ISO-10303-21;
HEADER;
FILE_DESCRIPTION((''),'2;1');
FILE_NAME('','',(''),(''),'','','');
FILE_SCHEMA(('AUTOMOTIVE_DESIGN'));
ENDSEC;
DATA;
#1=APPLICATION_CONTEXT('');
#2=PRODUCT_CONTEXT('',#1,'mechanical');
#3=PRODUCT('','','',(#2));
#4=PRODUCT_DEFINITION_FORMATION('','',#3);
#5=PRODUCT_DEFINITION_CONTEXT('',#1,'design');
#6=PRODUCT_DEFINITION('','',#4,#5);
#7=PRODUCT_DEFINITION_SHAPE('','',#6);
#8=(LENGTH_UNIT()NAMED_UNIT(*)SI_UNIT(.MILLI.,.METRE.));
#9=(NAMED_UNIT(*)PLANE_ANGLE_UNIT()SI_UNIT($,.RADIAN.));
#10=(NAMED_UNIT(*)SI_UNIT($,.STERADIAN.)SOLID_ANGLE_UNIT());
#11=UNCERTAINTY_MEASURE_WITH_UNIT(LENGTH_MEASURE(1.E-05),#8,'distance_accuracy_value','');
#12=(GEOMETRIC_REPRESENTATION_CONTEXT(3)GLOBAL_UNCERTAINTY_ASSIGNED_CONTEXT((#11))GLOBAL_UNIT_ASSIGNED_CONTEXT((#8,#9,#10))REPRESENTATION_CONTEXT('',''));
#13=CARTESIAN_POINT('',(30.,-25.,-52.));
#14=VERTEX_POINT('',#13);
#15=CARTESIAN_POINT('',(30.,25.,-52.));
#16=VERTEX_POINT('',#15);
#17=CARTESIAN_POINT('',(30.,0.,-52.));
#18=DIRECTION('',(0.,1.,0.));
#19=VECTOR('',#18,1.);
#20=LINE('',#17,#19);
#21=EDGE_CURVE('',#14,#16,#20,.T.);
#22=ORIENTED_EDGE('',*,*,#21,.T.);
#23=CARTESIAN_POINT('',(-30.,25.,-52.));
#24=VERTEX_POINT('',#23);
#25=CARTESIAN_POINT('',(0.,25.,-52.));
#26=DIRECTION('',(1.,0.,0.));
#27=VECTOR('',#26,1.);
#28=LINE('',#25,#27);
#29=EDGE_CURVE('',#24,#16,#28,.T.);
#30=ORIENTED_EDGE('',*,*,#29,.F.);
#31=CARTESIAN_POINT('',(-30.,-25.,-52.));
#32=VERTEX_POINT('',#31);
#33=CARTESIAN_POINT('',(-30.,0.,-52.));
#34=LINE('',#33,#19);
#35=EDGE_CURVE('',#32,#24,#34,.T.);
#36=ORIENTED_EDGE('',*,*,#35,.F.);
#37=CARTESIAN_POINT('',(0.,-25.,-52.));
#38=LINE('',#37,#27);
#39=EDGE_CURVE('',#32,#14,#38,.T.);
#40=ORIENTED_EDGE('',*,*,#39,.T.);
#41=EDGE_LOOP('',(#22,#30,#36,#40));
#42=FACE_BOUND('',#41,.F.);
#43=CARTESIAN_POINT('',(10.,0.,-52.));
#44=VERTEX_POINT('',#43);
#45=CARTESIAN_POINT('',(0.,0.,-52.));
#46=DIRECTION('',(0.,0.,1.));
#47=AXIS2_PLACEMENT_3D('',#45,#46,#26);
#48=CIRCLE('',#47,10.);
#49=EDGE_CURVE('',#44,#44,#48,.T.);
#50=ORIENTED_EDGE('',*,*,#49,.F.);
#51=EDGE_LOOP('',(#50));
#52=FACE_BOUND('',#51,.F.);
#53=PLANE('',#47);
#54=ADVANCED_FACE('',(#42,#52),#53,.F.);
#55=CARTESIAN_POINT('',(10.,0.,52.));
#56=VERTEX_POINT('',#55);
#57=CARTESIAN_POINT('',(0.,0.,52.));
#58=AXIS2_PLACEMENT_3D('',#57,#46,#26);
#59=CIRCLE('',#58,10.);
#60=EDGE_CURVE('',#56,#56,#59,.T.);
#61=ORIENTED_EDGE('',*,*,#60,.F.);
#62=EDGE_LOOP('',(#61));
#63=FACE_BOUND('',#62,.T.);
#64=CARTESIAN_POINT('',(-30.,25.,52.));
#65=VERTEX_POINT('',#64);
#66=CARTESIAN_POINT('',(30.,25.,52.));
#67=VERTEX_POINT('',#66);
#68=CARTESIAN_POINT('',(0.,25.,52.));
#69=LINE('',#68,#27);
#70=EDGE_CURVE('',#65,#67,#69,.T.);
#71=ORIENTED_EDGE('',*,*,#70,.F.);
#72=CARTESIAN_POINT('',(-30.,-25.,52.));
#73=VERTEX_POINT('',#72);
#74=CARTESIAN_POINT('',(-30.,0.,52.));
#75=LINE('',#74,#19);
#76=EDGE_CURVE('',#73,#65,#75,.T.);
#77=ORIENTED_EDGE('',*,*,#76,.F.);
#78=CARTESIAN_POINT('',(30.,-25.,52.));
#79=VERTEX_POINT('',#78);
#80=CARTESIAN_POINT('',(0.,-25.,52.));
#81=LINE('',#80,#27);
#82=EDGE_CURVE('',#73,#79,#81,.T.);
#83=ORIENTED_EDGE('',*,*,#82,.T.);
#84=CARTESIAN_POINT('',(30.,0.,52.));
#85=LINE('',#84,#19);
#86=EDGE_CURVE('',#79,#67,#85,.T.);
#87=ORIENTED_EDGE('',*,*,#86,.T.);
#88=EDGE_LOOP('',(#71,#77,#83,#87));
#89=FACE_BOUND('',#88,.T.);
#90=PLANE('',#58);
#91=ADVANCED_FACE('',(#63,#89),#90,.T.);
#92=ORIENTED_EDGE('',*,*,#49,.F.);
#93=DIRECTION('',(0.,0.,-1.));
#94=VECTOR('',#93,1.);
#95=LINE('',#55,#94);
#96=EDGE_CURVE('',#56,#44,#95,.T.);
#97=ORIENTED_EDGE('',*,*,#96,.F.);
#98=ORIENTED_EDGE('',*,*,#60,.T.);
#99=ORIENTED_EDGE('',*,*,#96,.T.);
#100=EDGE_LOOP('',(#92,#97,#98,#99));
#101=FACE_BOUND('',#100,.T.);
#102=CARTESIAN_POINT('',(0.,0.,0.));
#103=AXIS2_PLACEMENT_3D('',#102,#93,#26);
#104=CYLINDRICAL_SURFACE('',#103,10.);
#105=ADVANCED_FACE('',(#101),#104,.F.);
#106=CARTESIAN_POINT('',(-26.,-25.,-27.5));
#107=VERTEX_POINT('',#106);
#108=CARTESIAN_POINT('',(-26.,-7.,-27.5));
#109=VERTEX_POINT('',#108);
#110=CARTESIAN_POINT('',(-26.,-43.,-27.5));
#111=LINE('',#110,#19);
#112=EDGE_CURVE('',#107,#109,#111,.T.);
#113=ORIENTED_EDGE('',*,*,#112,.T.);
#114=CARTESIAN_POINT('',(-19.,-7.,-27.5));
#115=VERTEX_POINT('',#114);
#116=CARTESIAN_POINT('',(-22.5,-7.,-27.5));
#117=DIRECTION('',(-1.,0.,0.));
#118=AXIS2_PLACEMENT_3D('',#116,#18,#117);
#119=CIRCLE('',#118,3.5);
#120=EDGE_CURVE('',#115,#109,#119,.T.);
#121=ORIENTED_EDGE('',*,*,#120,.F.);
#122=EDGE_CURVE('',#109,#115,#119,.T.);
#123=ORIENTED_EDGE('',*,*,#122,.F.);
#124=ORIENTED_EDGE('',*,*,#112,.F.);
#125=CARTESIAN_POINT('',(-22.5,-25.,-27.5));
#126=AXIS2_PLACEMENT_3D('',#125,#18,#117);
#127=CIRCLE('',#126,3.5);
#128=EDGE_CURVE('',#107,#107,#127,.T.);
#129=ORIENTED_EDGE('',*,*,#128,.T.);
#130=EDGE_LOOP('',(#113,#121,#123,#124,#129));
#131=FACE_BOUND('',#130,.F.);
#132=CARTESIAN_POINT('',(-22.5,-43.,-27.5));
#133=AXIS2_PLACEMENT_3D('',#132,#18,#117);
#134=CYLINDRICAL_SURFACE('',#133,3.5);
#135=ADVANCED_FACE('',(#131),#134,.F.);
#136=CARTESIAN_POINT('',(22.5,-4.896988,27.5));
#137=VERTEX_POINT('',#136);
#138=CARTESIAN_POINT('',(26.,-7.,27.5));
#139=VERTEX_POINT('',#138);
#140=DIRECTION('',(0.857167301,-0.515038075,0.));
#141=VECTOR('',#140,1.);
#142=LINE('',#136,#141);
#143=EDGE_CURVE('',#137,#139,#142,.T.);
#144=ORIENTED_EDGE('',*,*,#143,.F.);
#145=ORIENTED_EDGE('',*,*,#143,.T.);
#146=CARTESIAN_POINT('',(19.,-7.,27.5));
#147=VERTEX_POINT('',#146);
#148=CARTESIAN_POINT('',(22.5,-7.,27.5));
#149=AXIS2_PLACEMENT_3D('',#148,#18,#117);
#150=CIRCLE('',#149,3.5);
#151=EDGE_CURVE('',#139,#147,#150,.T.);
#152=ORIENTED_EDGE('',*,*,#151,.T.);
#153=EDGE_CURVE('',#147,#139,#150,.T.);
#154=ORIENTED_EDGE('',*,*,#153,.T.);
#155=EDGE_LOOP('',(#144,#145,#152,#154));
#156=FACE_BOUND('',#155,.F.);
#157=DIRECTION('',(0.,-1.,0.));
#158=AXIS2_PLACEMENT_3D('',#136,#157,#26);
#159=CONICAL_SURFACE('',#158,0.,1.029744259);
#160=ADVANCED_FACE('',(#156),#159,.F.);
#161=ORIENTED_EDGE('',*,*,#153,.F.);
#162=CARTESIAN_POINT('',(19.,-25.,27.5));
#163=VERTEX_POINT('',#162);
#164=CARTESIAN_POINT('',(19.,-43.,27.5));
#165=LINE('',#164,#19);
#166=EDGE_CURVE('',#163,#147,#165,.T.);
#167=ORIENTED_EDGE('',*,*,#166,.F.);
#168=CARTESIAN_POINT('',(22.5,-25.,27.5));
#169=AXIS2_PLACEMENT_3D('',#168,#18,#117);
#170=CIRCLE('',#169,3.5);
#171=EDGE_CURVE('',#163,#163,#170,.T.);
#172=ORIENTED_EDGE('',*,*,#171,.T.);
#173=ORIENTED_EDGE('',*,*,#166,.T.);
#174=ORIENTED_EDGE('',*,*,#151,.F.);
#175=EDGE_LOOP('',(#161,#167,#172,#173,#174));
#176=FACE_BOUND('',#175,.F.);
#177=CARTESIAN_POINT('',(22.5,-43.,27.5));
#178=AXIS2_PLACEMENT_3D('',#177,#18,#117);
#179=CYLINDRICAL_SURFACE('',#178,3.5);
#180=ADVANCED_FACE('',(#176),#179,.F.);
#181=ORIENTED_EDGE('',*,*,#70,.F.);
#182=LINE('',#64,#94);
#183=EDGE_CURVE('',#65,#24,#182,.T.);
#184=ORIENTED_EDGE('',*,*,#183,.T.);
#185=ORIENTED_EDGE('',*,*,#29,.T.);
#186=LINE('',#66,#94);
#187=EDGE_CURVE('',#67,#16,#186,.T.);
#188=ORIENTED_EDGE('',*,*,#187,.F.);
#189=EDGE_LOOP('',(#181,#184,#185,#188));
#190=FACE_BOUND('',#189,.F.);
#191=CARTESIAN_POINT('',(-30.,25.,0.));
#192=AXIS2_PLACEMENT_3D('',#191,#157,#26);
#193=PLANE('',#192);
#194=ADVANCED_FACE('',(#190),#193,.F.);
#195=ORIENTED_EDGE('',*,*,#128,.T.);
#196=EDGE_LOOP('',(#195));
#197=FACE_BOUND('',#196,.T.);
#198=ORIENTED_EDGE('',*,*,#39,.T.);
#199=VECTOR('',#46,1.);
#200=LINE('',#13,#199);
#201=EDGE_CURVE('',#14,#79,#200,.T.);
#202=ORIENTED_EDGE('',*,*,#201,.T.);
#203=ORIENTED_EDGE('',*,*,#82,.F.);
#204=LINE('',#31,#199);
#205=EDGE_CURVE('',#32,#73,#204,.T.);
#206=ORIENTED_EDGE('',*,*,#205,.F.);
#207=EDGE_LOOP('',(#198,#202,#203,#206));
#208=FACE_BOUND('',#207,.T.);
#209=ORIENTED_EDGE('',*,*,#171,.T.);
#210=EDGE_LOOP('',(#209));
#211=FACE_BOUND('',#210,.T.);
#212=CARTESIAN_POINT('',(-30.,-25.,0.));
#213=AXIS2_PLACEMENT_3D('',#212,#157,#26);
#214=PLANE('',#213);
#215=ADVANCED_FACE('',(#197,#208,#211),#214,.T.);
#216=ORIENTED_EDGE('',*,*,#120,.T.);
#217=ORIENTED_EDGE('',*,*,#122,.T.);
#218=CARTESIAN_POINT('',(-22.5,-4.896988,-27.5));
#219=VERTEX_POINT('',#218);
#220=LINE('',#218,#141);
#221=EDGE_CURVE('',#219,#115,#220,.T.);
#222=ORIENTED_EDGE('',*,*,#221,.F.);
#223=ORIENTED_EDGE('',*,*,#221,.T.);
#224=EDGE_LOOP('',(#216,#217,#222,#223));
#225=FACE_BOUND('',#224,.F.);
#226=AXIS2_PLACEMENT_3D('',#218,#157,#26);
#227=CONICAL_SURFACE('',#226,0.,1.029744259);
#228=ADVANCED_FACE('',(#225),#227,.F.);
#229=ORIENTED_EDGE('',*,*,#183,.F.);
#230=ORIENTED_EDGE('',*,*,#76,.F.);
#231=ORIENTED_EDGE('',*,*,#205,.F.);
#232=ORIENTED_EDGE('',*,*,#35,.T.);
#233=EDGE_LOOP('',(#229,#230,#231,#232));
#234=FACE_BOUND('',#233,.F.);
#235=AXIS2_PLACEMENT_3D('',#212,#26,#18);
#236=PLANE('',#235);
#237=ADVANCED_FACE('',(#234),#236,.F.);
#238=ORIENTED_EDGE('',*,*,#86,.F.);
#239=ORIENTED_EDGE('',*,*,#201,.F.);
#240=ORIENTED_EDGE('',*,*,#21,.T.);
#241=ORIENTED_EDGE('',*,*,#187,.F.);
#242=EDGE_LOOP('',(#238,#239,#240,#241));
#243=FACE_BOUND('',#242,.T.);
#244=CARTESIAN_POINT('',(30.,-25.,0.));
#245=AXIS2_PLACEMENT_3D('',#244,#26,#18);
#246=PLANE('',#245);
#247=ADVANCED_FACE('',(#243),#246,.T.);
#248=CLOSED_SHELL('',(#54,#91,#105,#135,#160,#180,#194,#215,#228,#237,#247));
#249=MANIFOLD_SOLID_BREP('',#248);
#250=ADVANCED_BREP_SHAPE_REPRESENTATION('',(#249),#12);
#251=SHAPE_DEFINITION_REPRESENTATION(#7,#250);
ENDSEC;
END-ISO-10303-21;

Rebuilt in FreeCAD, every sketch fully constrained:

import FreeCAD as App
import Part
import Sketcher
from FreeCAD import Vector

doc = App.newDocument("Part")
params = doc.addObject("Spreadsheet::Sheet", "Params")
for row, (alias, value) in enumerate([
    ("sketch1_diameter", "20 mm"),
    ("sketch1_width", "60 mm"),
    ("sketch1_height", "50 mm"),
    ("pad1_length", "104 mm"),
    ("sketch2_diameter", "7 mm"),
    ("hole_diameter", "7 mm"),
    ("hole_depth", "18 mm"),
], start=1):
    params.set(f"A{row}", alias)
    params.set(f"B{row}", "=" + value)
    params.setAlias(f"B{row}", alias)

body = doc.addObject("PartDesign::Body", "Body")

# Sketch on XY plane
sketch1 = doc.addObject("Sketcher::SketchObject", "Sketch")
body.addObject(sketch1)
sketch1.AttachmentSupport = (doc.XY_Plane, [""])
sketch1.MapMode = "FlatFace"
sketch1.addGeometry(Part.LineSegment(Vector(-30, 25, 0), Vector(-30, -25, 0)), False)
sketch1.addGeometry(Part.LineSegment(Vector(-30, -25, 0), Vector(30, -25, 0)), False)
sketch1.addGeometry(Part.LineSegment(Vector(30, -25, 0), Vector(30, 25, 0)), False)
sketch1.addGeometry(Part.LineSegment(Vector(30, 25, 0), Vector(-30, 25, 0)), False)
sketch1.addGeometry(Part.Circle(Vector(0, 0, 0), Vector(0, 0, 1), 10), False)
sketch1.addConstraint(Sketcher.Constraint("Coincident", 0, 2, 1, 1))
sketch1.addConstraint(Sketcher.Constraint("Coincident", 1, 2, 2, 1))
sketch1.addConstraint(Sketcher.Constraint("Coincident", 2, 2, 3, 1))
sketch1.addConstraint(Sketcher.Constraint("Coincident", 3, 2, 0, 1))
sketch1.addConstraint(Sketcher.Constraint("Vertical", 0))
sketch1.addConstraint(Sketcher.Constraint("Horizontal", 1))
sketch1.addConstraint(Sketcher.Constraint("Vertical", 2))
sketch1.addConstraint(Sketcher.Constraint("Horizontal", 3))
sketch1.addConstraint(Sketcher.Constraint("Coincident", 4, 3, -1, 1))
sketch1.addConstraint(Sketcher.Constraint("Symmetric", 0, 2, 2, 2, -1, 1))
sketch1.addConstraint(Sketcher.Constraint("Diameter", 4, 20.0))
sketch1.addConstraint(Sketcher.Constraint("DistanceX", 1, 1, 1, 2, 60.0))
sketch1.addConstraint(Sketcher.Constraint("DistanceY", 0, 2, 0, 1, 50.0))
sketch1.setExpression("Constraints[10]", "Params.sketch1_diameter")
sketch1.setExpression("Constraints[11]", "Params.sketch1_width")
sketch1.setExpression("Constraints[12]", "Params.sketch1_height")
pad1 = doc.addObject("PartDesign::Pad", "Pad")
body.addObject(pad1)
pad1.Profile = sketch1
pad1.setExpression("Length", "Params.pad1_length")
pad1.Midplane = True

# Sketch on XZ plane
sketch2 = doc.addObject("Sketcher::SketchObject", "Sketch001")
body.addObject(sketch2)
sketch2.AttachmentSupport = (doc.XZ_Plane, [""])
sketch2.MapMode = "FlatFace"
sketch2.AttachmentOffset = App.Placement(Vector(0, 0, 25), App.Rotation())
sketch2.addGeometry(Part.Circle(Vector(22.5, 27.5, 0), Vector(0, 0, 1), 3.5), False)
sketch2.addGeometry(Part.Circle(Vector(-22.5, -27.5, 0), Vector(0, 0, 1), 3.5), False)
sketch2.addConstraint(Sketcher.Constraint("Equal", 0, 1))
sketch2.addConstraint(Sketcher.Constraint("Symmetric", 0, 3, 1, 3, -1, 1))
sketch2.addConstraint(Sketcher.Constraint("Diameter", 0, 7.0))
sketch2.addConstraint(Sketcher.Constraint("DistanceX", 1, 3, 0, 3, 45.0))
sketch2.addConstraint(Sketcher.Constraint("DistanceY", 1, 3, 0, 3, 55.0))
sketch2.setExpression("Constraints[2]", "Params.sketch2_diameter")
doc.recompute()
hole = doc.addObject("PartDesign::Hole", "Hole")
body.addObject(hole)
hole.Profile = sketch2
hole.ThreadType = "None"
hole.setExpression("Diameter", "Params.hole_diameter")
hole.DepthType = "Dimension"
hole.setExpression("Depth", "Params.hole_depth")
hole.DrillPoint = "Angled"
hole.DrillPointAngle = 118

doc.recompute()
